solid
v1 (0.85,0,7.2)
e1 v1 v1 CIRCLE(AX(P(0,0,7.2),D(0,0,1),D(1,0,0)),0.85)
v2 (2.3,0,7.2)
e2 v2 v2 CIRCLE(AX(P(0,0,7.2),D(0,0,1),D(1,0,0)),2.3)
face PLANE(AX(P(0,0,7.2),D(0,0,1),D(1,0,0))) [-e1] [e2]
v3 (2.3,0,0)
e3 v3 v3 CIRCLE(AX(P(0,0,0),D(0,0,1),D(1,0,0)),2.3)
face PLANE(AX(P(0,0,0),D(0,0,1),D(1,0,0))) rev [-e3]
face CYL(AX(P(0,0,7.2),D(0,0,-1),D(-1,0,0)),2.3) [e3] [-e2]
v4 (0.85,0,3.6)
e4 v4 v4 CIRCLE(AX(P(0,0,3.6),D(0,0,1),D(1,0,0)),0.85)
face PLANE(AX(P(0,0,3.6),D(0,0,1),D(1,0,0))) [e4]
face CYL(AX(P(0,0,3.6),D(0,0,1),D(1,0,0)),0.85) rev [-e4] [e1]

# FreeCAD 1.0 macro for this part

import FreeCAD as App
import Part
import Sketcher

V = App.Vector

doc = App.newDocument("Part")
body = doc.addObject("PartDesign::Body", "Body")

sketch1 = doc.addObject("Sketcher::SketchObject", "Sketch")
body.addObject(sketch1)
sketch1.AttachmentSupport = (doc.XY_Plane, [""])
sketch1.MapMode = "FlatFace"
sketch1.addGeometry(Part.Circle(V(0, 0, 0), V(0, 0, 1), 2.3), False)
sketch1.addConstraint([
    Sketcher.Constraint("Coincident", 0, 3, -1, 1),
    Sketcher.Constraint("Diameter", 0, 4.6),
])
pad1 = doc.addObject("PartDesign::Pad", "Pad")
body.addObject(pad1)
pad1.Profile = sketch1
pad1.Length = 7.2

sketch2 = doc.addObject("Sketcher::SketchObject", "Sketch001")
body.addObject(sketch2)
sketch2.AttachmentSupport = (doc.XY_Plane, [""])
sketch2.MapMode = "FlatFace"
sketch2.AttachmentOffset = App.Placement(V(0, 0, 7.2), App.Rotation())
sketch2.addGeometry(Part.Circle(V(0, 0, 0), V(0, 0, 1), 0.85), False)
sketch2.addConstraint([
    Sketcher.Constraint("Coincident", 0, 3, -1, 1),
    Sketcher.Constraint("Diameter", 0, 1.7),
])
pocket1 = doc.addObject("PartDesign::Pocket", "Pocket")
body.addObject(pocket1)
pocket1.Profile = sketch2
pocket1.Length = 3.6

doc.recompute()
